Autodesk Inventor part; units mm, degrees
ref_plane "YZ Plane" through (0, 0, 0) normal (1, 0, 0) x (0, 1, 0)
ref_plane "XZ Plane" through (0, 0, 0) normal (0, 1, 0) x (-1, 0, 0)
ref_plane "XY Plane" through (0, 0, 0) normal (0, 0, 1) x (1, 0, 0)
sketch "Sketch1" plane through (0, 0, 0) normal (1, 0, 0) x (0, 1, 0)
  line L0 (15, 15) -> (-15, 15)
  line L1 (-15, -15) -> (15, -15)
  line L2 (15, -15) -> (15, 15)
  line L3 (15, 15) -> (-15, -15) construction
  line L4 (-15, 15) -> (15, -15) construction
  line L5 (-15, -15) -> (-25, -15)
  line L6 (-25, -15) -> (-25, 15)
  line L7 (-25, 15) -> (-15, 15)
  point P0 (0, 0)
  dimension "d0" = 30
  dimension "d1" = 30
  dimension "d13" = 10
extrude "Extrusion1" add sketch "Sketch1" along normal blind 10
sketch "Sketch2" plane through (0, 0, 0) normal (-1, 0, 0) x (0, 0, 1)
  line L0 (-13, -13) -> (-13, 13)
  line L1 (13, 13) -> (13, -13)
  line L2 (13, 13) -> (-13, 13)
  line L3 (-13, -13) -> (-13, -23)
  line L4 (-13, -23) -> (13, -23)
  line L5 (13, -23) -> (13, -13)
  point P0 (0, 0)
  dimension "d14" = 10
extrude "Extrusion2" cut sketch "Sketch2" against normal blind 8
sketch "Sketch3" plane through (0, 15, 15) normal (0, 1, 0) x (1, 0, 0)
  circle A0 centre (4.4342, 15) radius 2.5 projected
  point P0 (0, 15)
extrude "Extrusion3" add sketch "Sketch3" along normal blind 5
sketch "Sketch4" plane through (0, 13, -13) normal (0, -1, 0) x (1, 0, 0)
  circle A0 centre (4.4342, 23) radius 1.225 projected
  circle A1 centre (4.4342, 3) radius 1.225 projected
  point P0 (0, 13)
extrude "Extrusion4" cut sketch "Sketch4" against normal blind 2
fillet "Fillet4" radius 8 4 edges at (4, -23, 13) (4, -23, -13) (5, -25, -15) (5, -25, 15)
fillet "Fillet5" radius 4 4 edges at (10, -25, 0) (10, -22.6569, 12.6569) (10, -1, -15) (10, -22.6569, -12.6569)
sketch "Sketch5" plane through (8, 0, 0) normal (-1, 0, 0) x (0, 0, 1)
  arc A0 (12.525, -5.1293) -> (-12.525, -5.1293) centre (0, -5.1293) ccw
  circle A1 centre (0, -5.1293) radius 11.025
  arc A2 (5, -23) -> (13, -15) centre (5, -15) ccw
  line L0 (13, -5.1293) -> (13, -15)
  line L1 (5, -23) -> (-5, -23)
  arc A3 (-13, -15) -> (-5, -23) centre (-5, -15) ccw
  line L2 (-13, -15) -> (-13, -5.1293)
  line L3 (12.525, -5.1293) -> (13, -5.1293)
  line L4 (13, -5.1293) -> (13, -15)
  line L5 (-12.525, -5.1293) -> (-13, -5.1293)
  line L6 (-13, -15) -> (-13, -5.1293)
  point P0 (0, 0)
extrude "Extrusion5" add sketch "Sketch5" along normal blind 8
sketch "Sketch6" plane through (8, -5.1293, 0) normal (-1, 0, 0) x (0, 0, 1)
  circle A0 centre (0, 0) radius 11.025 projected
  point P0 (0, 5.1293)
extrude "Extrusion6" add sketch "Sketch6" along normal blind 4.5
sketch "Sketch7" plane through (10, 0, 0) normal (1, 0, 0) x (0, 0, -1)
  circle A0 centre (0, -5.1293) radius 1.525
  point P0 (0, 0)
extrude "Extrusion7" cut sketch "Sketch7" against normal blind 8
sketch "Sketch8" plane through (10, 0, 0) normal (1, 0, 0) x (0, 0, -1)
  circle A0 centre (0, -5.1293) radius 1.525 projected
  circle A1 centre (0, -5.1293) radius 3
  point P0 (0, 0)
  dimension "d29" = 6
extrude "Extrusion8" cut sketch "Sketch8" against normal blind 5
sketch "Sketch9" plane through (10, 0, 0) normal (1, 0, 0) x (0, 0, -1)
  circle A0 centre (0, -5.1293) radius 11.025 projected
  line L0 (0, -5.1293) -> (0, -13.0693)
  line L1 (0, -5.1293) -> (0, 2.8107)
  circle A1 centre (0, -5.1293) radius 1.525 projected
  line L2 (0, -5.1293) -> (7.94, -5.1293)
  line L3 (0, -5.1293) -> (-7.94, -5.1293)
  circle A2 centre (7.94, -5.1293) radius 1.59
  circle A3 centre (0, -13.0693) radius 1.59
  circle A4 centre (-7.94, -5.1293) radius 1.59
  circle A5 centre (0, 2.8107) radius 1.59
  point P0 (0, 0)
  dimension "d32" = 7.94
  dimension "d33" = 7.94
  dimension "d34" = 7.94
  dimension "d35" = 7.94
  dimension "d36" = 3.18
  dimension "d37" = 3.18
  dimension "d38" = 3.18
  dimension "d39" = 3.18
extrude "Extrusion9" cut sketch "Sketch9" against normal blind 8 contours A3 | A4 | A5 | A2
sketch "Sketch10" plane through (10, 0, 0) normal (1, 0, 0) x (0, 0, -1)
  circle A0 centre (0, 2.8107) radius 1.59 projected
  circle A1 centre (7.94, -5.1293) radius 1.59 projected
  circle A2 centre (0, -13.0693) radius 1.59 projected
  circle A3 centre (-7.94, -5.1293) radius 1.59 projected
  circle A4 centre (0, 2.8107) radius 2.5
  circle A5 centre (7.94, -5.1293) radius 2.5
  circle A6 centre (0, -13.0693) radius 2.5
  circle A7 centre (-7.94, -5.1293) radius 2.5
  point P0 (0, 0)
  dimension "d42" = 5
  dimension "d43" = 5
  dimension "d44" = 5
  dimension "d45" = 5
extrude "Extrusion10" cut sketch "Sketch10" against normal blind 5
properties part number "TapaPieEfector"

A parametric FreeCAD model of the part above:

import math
import FreeCAD as App
import Part
import Sketcher

V = App.Vector


def edges_at(feature, points):
    """Names of the edges that pass closest to the given points."""
    edges = feature.Shape.Edges
    near = lambda p: min(range(len(edges)), key=lambda i: edges[i].distToShape(Part.Vertex(*p))[0])
    return sorted({f"Edge{near(p) + 1}" for p in points})


def add_polygon(sketch, points):
    """Adds a closed chain of lines whose ends are joined by coincident constraints."""
    first, n = sketch.GeometryCount, len(points)
    for a, b in zip(points, points[1:] + points[:1]):
        sketch.addGeometry(Part.LineSegment(App.Vector(*a, 0), App.Vector(*b, 0)), False)
    for i in range(n):
        sketch.addConstraint(Sketcher.Constraint("Coincident", first + i, 2, first + (i + 1) % n, 1))

doc = App.newDocument("Part")
body = doc.addObject("PartDesign::Body", "Body")

# Sketch on YZ plane
sketch1 = body.newObject("Sketcher::SketchObject", "Sketch")
sketch1.AttachmentSupport = (doc.getObject("YZ_Plane"), [""])
sketch1.MapMode = "FlatFace"
add_polygon(sketch1, [(15, -15), (15, 15), (-25, 15), (-25, -15)])  # lines 0-3
sketch1.addConstraint([
    Sketcher.Constraint("Vertical", 0),
    Sketcher.Constraint("Horizontal", 1),
    Sketcher.Constraint("Vertical", 2),
    Sketcher.Constraint("Horizontal", 3),
    Sketcher.Constraint("DistanceY", 0, 1, 0, 2, 30.0),
    Sketcher.Constraint("DistanceX", 1, 2, 1, 1, 40.0),
    Sketcher.Constraint("DistanceX", -1, 1, 0, 2, 15.0),
    Sketcher.Constraint("DistanceY", -1, 1, 0, 2, 15.0),
])
pad1 = body.newObject("PartDesign::Pad", "Pad")
pad1.Profile = sketch1
pad1.Length = 10

# Sketch on YZ plane
sketch2 = body.newObject("Sketcher::SketchObject", "Sketch001")
sketch2.AttachmentSupport = (doc.getObject("YZ_Plane"), [""])
sketch2.MapMode = "FlatFace"
add_polygon(sketch2, [(13, -13), (-23, -13), (-23, 13), (13, 13)])  # lines 0-3
sketch2.addConstraint([
    Sketcher.Constraint("Horizontal", 0),
    Sketcher.Constraint("Vertical", 1),
    Sketcher.Constraint("Horizontal", 2),
    Sketcher.Constraint("Vertical", 3),
    Sketcher.Constraint("DistanceX", 0, 2, 0, 1, 36.0),
    Sketcher.Constraint("DistanceY", 1, 1, 1, 2, 26.0),
    Sketcher.Constraint("DistanceX", 0, 2, -1, 1, 23.0),
    Sketcher.Constraint("DistanceY", 0, 2, -1, 1, 13.0),
])
pocket1 = body.newObject("PartDesign::Pocket", "Pocket")
pocket1.Profile = sketch2
pocket1.Length = 8
pocket1.Reversed = True

# Sketch on XZ plane
sketch3 = body.newObject("Sketcher::SketchObject", "Sketch002")
sketch3.AttachmentSupport = (doc.getObject("XZ_Plane"), [""])
sketch3.MapMode = "FlatFace"
sketch3.AttachmentOffset = App.Placement(V(0, 0, -15), App.Rotation())
sketch3.addGeometry(Part.Circle(V(4.4, 0, 0), V(0, 0, 1), 2.5), False)
sketch3.addConstraint([
    Sketcher.Constraint("PointOnObject", 0, 3, -1),
    Sketcher.Constraint("Diameter", 0, 5.0),
    Sketcher.Constraint("DistanceX", -1, 1, 0, 3, 4.4342),
])
pad2 = body.newObject("PartDesign::Pad", "Pad001")
pad2.Profile = sketch3
pad2.Length = 5
pad2.Reversed = True

# Sketch on XZ plane
sketch4 = body.newObject("Sketcher::SketchObject", "Sketch003")
sketch4.AttachmentSupport = (doc.getObject("XZ_Plane"), [""])
sketch4.MapMode = "FlatFace"
sketch4.AttachmentOffset = App.Placement(V(0, 0, -13), App.Rotation())
sketch4.addGeometry([
    Part.Circle(V(4.4, 10, 0), V(0, 0, 1), 1.2),
    Part.Circle(V(4.4, -10, 0), V(0, 0, 1), 1.2),
], False)
sketch4.addConstraint([
    Sketcher.Constraint("Equal", 0, 1),
    Sketcher.Constraint("Symmetric", 0, 3, 1, 3, -1),
    Sketcher.Constraint("Diameter", 0, 2.45),
    Sketcher.Constraint("DistanceY", -1, 1, 0, 3, 10.0),
    Sketcher.Constraint("DistanceX", -1, 1, 0, 3, 4.4342),
])
pocket2 = body.newObject("PartDesign::Pocket", "Pocket001")
pocket2.Profile = sketch4
pocket2.Length = 2
doc.recompute()

fillet = body.newObject("PartDesign::Fillet", "Fillet")
fillet.Base = (pocket2, edges_at(pocket2, [
    (4, -23, 13),
    (4, -23, -13),
    (5, -25, -15),
    (5, -25, 15),
]))
fillet.Radius = 8
doc.recompute()

fillet2 = body.newObject("PartDesign::Fillet", "Fillet001")
fillet2.Base = (fillet, edges_at(fillet, [
    (10, -25, 0),
    (10, -22.657, 12.657),
    (10, -1, -15),
    (10, -22.657, -12.657),
]))
fillet2.Radius = 4

# Sketch on YZ plane
sketch5 = body.newObject("Sketcher::SketchObject", "Sketch004")
sketch5.AttachmentSupport = (doc.getObject("YZ_Plane"), [""])
sketch5.MapMode = "FlatFace"
sketch5.AttachmentOffset = App.Placement(V(0, 0, 8), App.Rotation())
sketch5.addGeometry([
    Part.LineSegment(V(-5.13, 13, 0), V(-5.13, 12.53, 0)),  # 0
    Part.ArcOfCircle(Part.Circle(V(-5.13, 0, 0), V(0, 0, 1), 12.53), math.radians(-90), math.radians(90)),  # 1
    Part.LineSegment(V(-5.13, -12.53, 0), V(-5.13, -13, 0)),  # 2
    Part.LineSegment(V(-5.13, -13, 0), V(-15, -13, 0)),  # 3
    Part.ArcOfCircle(Part.Circle(V(-15, -5, 0), V(0, 0, 1), 8), math.radians(180), math.radians(270)),  # 4
    Part.LineSegment(V(-23, -5, 0), V(-23, 5, 0)),  # 5
    Part.ArcOfCircle(Part.Circle(V(-15, 5, 0), V(0, 0, 1), 8), math.radians(90), math.radians(180)),  # 6
    Part.LineSegment(V(-15, 13, 0), V(-5.13, 13, 0)),  # 7
    Part.Circle(V(-5.13, 0, 0), V(0, 0, 1), 11.03),  # 8
], False)
sketch5.addConstraint([
    Sketcher.Constraint("Coincident", 0, 2, 1, 2),
    Sketcher.Constraint("Coincident", 1, 1, 2, 1),
    Sketcher.Constraint("Coincident", 2, 2, 3, 1),
    Sketcher.Constraint("Tangent", 3, 2, 4, 2),
    Sketcher.Constraint("Tangent", 4, 1, 5, 1),
    Sketcher.Constraint("Tangent", 5, 2, 6, 2),
    Sketcher.Constraint("Tangent", 6, 1, 7, 1),
    Sketcher.Constraint("Coincident", 7, 2, 0, 1),
    Sketcher.Constraint("Vertical", 0),
    Sketcher.Constraint("Vertical", 2),
    Sketcher.Constraint("Horizontal", 3),
    Sketcher.Constraint("Vertical", 5),
    Sketcher.Constraint("Horizontal", 7),
    Sketcher.Constraint("Coincident", 8, 3, 1, 3),
    Sketcher.Constraint("Equal", 4, 6),
    Sketcher.Constraint("Symmetric", 0, 2, 1, 1, -1),
    Sketcher.Constraint("Vertical", 8, 3, 0, 2),
    Sketcher.Constraint("Equal", 0, 2),
    Sketcher.Constraint("Radius", 4, 8.0),
    Sketcher.Constraint("Diameter", 8, 22.05),
    Sketcher.Constraint("DistanceY", 5, 1, 5, 2, 10.0),
    Sketcher.Constraint("DistanceX", 4, 3, -1, 1, 15.0),
    Sketcher.Constraint("Radius", 1, 12.525),
    Sketcher.Constraint("DistanceX", 3, 2, 3, 1, 9.8707),
])
pad3 = body.newObject("PartDesign::Pad", "Pad002")
pad3.Profile = sketch5
pad3.Length = 8
pad3.Reversed = True

# Sketch on YZ plane
sketch6 = body.newObject("Sketcher::SketchObject", "Sketch005")
sketch6.AttachmentSupport = (doc.getObject("YZ_Plane"), [""])
sketch6.MapMode = "FlatFace"
sketch6.AttachmentOffset = App.Placement(V(0, 0, 8), App.Rotation())
sketch6.addGeometry(Part.Circle(V(-5, 0, 0), V(0, 0, 1), 11), False)
sketch6.addConstraint([
    Sketcher.Constraint("PointOnObject", 0, 3, -1),
    Sketcher.Constraint("Diameter", 0, 22.05),
    Sketcher.Constraint("DistanceX", 0, 3, -1, 1, 5.1293),
])
pad4 = body.newObject("PartDesign::Pad", "Pad003")
pad4.Profile = sketch6
pad4.Length = 4.5
pad4.Reversed = True

# Sketch on YZ plane
sketch7 = body.newObject("Sketcher::SketchObject", "Sketch006")
sketch7.AttachmentSupport = (doc.getObject("YZ_Plane"), [""])
sketch7.MapMode = "FlatFace"
sketch7.AttachmentOffset = App.Placement(V(0, 0, 10), App.Rotation())
sketch7.addGeometry(Part.Circle(V(-5.1, 0, 0), V(0, 0, 1), 1.5), False)
sketch7.addConstraint([
    Sketcher.Constraint("PointOnObject", 0, 3, -1),
    Sketcher.Constraint("Diameter", 0, 3.05),
    Sketcher.Constraint("DistanceX", 0, 3, -1, 1, 5.1293),
])
pocket3 = body.newObject("PartDesign::Pocket", "Pocket002")
pocket3.Profile = sketch7
pocket3.Length = 8

# Sketch on YZ plane
sketch8 = body.newObject("Sketcher::SketchObject", "Sketch007")
sketch8.AttachmentSupport = (doc.getObject("YZ_Plane"), [""])
sketch8.MapMode = "FlatFace"
sketch8.AttachmentOffset = App.Placement(V(0, 0, 10), App.Rotation())
sketch8.addGeometry([
    Part.Circle(V(-5.1, 0, 0), V(0, 0, 1), 3),
    Part.Circle(V(-5.1, 0, 0), V(0, 0, 1), 1.5),
], False)
sketch8.addConstraint([
    Sketcher.Constraint("Coincident", 1, 3, 0, 3),
    Sketcher.Constraint("PointOnObject", 0, 3, -1),
    Sketcher.Constraint("Diameter", 0, 6.0),
    Sketcher.Constraint("Diameter", 1, 3.05),
    Sketcher.Constraint("DistanceX", 0, 3, -1, 1, 5.1293),
])
pocket4 = body.newObject("PartDesign::Pocket", "Pocket003")
pocket4.Profile = sketch8
pocket4.Length = 5

# Sketch on YZ plane
sketch9 = body.newObject("Sketcher::SketchObject", "Sketch008")
sketch9.AttachmentSupport = (doc.getObject("YZ_Plane"), [""])
sketch9.MapMode = "FlatFace"
sketch9.AttachmentOffset = App.Placement(V(0, 0, 10), App.Rotation())
sketch9.addGeometry([
    Part.Circle(V(-13.1, 0, 0), V(0, 0, 1), 1.6),
    Part.Circle(V(-5.1, 7.9, 0), V(0, 0, 1), 1.6),
    Part.Circle(V(2.8, 0, 0), V(0, 0, 1), 1.6),
    Part.Circle(V(-5.1, -7.9, 0), V(0, 0, 1), 1.6),
], False)
sketch9.addConstraint([
    Sketcher.Constraint("Equal", 0, 1),
    Sketcher.Constraint("Equal", 1, 2),
    Sketcher.Constraint("Equal", 2, 3),
    Sketcher.Constraint("Symmetric", 1, 3, 3, 3, -1),
    Sketcher.Constraint("PointOnObject", 0, 3, -1),
    Sketcher.Constraint("PointOnObject", 2, 3, -1),
    Sketcher.Constraint("Diameter", 0, 3.18),
    Sketcher.Constraint("DistanceY", -1, 1, 1, 3, 7.94),
    Sketcher.Constraint("DistanceX", 0, 3, 1, 3, 7.94),
    Sketcher.Constraint("DistanceX", 1, 3, 2, 3, 7.94),
    Sketcher.Constraint("DistanceX", 0, 3, -1, 1, 13.0693),
])
pocket5 = body.newObject("PartDesign::Pocket", "Pocket004")
pocket5.Profile = sketch9
pocket5.Length = 8

# Sketch on YZ plane
sketch10 = body.newObject("Sketcher::SketchObject", "Sketch009")
sketch10.AttachmentSupport = (doc.getObject("YZ_Plane"), [""])
sketch10.MapMode = "FlatFace"
sketch10.AttachmentOffset = App.Placement(V(0, 0, 10), App.Rotation())
sketch10.addGeometry([
    Part.Circle(V(2.8, 0, 0), V(0, 0, 1), 2.5),  # 0
    Part.Circle(V(2.8, 0, 0), V(0, 0, 1), 1.6),  # 1
    Part.Circle(V(-5.1, -7.9, 0), V(0, 0, 1), 2.5),  # 2
    Part.Circle(V(-5.1, -7.9, 0), V(0, 0, 1), 1.6),  # 3
    Part.Circle(V(-13.1, 0, 0), V(0, 0, 1), 2.5),  # 4
    Part.Circle(V(-13.1, 0, 0), V(0, 0, 1), 1.6),  # 5
    Part.Circle(V(-5.1, 7.9, 0), V(0, 0, 1), 2.5),  # 6
    Part.Circle(V(-5.1, 7.9, 0), V(0, 0, 1), 1.6),  # 7
], False)
sketch10.addConstraint([
    Sketcher.Constraint("Coincident", 1, 3, 0, 3),
    Sketcher.Constraint("Coincident", 3, 3, 2, 3),
    Sketcher.Constraint("Coincident", 5, 3, 4, 3),
    Sketcher.Constraint("Coincident", 7, 3, 6, 3),
    Sketcher.Constraint("Equal", 0, 2),
    Sketcher.Constraint("Equal", 1, 3),
    Sketcher.Constraint("Equal", 2, 4),
    Sketcher.Constraint("Equal", 3, 5),
    Sketcher.Constraint("Equal", 4, 6),
    Sketcher.Constraint("Equal", 5, 7),
    Sketcher.Constraint("Symmetric", 2, 3, 6, 3, -1),
    Sketcher.Constraint("PointOnObject", 0, 3, -1),
    Sketcher.Constraint("PointOnObject", 4, 3, -1),
    Sketcher.Constraint("Diameter", 0, 5.0),
    Sketcher.Constraint("Diameter", 1, 3.18),
    Sketcher.Constraint("DistanceY", 2, 3, -1, 1, 7.94),
    Sketcher.Constraint("DistanceX", 2, 3, 0, 3, 7.94),
    Sketcher.Constraint("DistanceX", 4, 3, 2, 3, 7.94),
    Sketcher.Constraint("DistanceX", -1, 1, 0, 3, 2.8107),
])
pocket6 = body.newObject("PartDesign::Pocket", "Pocket005")
pocket6.Profile = sketch10
pocket6.Length = 5

doc.recompute()
